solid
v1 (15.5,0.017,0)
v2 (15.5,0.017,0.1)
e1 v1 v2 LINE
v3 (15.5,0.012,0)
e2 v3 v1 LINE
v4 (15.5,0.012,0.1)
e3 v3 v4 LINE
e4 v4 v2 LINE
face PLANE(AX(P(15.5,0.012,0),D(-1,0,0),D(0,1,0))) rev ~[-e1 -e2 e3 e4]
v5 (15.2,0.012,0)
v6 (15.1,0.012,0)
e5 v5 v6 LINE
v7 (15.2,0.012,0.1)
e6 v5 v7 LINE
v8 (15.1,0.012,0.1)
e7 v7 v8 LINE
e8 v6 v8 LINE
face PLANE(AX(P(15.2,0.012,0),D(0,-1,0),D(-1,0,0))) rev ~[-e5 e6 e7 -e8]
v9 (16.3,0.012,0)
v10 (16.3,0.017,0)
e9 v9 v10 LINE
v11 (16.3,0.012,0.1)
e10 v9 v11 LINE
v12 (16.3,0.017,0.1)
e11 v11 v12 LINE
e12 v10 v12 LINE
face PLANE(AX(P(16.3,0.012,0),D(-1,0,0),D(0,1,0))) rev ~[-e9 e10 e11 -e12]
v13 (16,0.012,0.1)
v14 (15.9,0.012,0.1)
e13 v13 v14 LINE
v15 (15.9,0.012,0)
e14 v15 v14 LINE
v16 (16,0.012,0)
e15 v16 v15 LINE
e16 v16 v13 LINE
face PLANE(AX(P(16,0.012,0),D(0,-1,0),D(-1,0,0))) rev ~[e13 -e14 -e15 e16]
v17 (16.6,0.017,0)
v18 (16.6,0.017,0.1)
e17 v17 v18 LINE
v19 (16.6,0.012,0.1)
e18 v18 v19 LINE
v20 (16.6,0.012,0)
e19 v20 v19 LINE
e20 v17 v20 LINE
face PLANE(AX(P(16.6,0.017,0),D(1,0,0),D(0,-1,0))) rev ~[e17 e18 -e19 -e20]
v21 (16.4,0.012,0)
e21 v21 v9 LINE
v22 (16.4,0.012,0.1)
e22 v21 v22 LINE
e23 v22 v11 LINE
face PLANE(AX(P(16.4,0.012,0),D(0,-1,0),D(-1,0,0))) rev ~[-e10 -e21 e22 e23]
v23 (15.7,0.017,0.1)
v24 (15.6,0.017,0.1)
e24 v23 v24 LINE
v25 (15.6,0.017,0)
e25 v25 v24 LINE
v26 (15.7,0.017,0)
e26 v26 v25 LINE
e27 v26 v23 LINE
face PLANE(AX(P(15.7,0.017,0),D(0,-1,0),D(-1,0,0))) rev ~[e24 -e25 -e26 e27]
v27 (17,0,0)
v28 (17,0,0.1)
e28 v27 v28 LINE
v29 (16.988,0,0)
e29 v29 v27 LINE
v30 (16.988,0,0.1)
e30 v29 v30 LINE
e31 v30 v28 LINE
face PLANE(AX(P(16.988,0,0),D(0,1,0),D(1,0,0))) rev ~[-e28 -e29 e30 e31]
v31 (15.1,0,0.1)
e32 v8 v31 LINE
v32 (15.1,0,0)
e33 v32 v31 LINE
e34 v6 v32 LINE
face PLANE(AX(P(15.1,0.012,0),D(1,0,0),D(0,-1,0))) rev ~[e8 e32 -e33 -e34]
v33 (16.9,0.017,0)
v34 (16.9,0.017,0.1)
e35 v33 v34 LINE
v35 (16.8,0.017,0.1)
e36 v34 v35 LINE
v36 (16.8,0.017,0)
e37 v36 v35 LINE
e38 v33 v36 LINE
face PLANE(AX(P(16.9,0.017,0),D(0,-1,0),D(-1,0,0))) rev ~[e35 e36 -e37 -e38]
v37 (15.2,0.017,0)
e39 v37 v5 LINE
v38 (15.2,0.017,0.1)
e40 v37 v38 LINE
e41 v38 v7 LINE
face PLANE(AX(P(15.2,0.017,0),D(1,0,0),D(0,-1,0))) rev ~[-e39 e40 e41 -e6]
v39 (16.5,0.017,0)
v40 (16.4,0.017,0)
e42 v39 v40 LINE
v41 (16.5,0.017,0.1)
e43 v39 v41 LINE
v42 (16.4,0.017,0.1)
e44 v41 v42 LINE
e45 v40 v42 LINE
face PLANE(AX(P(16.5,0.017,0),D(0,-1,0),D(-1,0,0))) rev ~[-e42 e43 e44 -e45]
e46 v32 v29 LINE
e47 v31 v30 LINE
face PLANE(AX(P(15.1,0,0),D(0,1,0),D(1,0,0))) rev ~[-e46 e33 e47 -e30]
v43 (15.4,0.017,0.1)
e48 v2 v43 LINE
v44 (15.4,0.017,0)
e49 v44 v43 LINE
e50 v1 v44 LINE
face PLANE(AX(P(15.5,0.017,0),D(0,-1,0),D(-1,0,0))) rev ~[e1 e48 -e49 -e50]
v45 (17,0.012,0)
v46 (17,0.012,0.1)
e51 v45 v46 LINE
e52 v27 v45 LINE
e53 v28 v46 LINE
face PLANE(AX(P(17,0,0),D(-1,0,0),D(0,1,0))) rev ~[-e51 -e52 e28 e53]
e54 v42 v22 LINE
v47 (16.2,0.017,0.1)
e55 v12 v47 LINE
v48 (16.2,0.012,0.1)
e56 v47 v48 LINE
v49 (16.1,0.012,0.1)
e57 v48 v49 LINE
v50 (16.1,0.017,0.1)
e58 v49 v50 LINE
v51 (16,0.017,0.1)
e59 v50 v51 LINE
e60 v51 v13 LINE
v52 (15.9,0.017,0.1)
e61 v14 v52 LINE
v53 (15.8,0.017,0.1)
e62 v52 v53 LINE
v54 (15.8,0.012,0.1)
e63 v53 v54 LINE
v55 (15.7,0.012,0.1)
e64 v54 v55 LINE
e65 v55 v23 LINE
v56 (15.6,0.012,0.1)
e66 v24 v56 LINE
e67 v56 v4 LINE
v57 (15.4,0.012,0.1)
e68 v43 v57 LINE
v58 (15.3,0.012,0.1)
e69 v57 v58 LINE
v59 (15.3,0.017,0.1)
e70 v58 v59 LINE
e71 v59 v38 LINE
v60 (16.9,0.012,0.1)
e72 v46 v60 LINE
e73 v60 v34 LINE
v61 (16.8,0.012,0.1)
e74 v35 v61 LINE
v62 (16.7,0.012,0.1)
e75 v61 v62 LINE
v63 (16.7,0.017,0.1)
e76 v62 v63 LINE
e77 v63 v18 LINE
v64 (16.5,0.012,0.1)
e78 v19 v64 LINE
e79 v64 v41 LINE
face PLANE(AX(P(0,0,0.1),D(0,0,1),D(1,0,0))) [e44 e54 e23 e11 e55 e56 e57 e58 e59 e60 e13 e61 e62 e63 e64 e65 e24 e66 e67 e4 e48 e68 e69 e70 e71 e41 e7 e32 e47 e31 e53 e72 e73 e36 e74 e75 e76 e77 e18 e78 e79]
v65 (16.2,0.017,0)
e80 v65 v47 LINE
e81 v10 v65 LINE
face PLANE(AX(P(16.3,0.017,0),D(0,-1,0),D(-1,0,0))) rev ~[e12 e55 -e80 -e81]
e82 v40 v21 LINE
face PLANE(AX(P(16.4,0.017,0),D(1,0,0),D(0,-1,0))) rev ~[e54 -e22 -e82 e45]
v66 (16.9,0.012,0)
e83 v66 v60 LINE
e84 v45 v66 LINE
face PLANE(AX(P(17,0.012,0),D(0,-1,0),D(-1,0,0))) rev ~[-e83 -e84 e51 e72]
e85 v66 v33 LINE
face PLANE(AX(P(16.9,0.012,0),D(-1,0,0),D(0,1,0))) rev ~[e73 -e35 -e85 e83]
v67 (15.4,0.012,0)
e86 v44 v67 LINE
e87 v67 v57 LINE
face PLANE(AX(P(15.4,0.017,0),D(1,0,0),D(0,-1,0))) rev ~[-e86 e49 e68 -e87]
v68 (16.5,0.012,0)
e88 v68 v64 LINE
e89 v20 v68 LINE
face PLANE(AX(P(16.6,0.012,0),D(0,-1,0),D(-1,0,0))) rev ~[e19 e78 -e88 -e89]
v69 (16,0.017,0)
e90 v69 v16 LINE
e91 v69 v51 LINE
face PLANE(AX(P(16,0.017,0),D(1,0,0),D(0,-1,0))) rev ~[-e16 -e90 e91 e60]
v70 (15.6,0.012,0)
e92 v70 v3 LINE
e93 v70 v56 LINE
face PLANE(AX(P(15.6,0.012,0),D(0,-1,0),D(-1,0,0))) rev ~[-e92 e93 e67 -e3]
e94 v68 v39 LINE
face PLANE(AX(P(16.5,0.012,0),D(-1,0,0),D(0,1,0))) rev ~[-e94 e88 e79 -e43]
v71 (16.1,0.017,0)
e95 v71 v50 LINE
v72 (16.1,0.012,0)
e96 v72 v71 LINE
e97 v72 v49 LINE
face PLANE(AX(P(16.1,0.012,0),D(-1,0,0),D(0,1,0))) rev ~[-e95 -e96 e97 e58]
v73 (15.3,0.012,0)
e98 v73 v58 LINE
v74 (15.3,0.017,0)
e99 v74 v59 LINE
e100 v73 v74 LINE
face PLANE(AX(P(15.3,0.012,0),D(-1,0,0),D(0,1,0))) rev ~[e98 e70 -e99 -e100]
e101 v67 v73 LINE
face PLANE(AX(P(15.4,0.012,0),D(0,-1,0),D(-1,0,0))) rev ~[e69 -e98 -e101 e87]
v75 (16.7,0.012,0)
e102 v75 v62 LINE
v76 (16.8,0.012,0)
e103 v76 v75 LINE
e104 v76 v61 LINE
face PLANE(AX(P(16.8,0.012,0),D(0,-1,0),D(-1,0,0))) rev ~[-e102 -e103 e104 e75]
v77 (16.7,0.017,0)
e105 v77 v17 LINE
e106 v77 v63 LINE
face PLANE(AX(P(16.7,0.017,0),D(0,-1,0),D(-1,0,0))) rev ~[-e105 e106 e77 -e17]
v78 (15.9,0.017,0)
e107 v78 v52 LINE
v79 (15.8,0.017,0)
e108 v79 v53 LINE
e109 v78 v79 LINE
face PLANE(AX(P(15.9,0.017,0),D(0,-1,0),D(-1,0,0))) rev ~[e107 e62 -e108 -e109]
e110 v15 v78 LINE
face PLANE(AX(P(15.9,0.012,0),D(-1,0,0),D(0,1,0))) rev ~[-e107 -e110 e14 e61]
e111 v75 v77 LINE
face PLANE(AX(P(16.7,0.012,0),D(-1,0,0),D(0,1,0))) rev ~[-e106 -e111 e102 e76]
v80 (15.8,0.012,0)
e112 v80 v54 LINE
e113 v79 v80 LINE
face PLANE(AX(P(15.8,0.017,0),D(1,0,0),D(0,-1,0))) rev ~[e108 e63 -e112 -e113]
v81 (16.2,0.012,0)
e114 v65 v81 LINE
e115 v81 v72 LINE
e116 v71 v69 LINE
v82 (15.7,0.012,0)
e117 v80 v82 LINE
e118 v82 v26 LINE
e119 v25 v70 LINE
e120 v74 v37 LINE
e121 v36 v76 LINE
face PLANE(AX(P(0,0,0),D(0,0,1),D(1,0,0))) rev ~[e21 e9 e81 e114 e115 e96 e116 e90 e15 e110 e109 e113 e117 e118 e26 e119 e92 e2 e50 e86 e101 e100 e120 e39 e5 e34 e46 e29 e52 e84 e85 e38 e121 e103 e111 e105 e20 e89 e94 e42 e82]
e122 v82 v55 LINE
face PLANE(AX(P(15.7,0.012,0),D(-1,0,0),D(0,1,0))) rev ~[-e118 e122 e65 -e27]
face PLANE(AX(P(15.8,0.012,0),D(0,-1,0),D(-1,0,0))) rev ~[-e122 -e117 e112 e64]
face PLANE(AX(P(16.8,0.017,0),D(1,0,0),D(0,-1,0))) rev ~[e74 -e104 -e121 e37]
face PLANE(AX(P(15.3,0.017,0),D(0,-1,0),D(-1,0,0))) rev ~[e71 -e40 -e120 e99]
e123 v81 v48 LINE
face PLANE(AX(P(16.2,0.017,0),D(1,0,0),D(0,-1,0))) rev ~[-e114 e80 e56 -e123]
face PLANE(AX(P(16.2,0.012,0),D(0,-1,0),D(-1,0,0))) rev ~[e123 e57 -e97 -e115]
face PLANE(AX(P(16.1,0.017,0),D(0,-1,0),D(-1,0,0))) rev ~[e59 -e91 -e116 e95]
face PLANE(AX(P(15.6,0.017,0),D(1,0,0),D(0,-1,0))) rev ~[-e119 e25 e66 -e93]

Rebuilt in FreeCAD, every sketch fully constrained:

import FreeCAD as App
import Part
import Sketcher
from FreeCAD import Vector
Q = App.Units.Quantity


def add_polygon(sketch, points):
    """Adds a closed chain of lines whose ends are joined by coincident constraints."""
    first, n = sketch.GeometryCount, len(points)
    for a, b in zip(points, points[1:] + points[:1]):
        sketch.addGeometry(Part.LineSegment(App.Vector(*a, 0), App.Vector(*b, 0)), False)
    for i in range(n):
        sketch.addConstraint(Sketcher.Constraint("Coincident", first + i, 2, first + (i + 1) % n, 1))

doc = App.newDocument("Part")
body = doc.addObject("PartDesign::Body", "Body")

# Sketch on XY plane
sketch1 = doc.addObject("Sketcher::SketchObject", "Sketch")
body.addObject(sketch1)
sketch1.AttachmentSupport = (doc.XY_Plane, [""])
sketch1.MapMode = "FlatFace"
add_polygon(sketch1, [(15.1, 0.012), (15.1, 0), (17, 0), (17, 0.012), (16.9, 0.012), (16.9, 0.017), (16.8, 0.017), (16.8, 0.012), (16.7, 0.012), (16.7, 0.017), (16.6, 0.017), (16.6, 0.012), (16.5, 0.012), (16.5, 0.017), (16.4, 0.017), (16.4, 0.012), (16.3, 0.012), (16.3, 0.017), (16.2, 0.017), (16.2, 0.012), (16.1, 0.012), (16.1, 0.017), (16, 0.017), (16, 0.012), (15.9, 0.012), (15.9, 0.017), (15.8, 0.017), (15.8, 0.012), (15.7, 0.012), (15.7, 0.017), (15.6, 0.017), (15.6, 0.012), (15.5, 0.012), (15.5, 0.017), (15.4, 0.017), (15.4, 0.012), (15.3, 0.012), (15.3, 0.017), (15.2, 0.017), (15.2, 0.012)])  # lines 0-39
sketch1.addConstraint([
    Sketcher.Constraint("Vertical", 0),
    Sketcher.Constraint("Horizontal", 1),
    Sketcher.Constraint("Vertical", 2),
    Sketcher.Constraint("Horizontal", 3),
    Sketcher.Constraint("Vertical", 4),
    Sketcher.Constraint("Horizontal", 5),
    Sketcher.Constraint("Vertical", 6),
    Sketcher.Constraint("Horizontal", 7),
    Sketcher.Constraint("Vertical", 8),
    Sketcher.Constraint("Horizontal", 9),
    Sketcher.Constraint("Vertical", 10),
    Sketcher.Constraint("Horizontal", 11),
    Sketcher.Constraint("Vertical", 12),
    Sketcher.Constraint("Horizontal", 13),
    Sketcher.Constraint("Vertical", 14),
    Sketcher.Constraint("Horizontal", 15),
    Sketcher.Constraint("Vertical", 16),
    Sketcher.Constraint("Horizontal", 17),
    Sketcher.Constraint("Vertical", 18),
    Sketcher.Constraint("Horizontal", 19),
    Sketcher.Constraint("Vertical", 20),
    Sketcher.Constraint("Horizontal", 21),
    Sketcher.Constraint("Vertical", 22),
    Sketcher.Constraint("Horizontal", 23),
    Sketcher.Constraint("Vertical", 24),
    Sketcher.Constraint("Horizontal", 25),
    Sketcher.Constraint("Vertical", 26),
    Sketcher.Constraint("Horizontal", 27),
    Sketcher.Constraint("Vertical", 28),
    Sketcher.Constraint("Horizontal", 29),
    Sketcher.Constraint("Vertical", 30),
    Sketcher.Constraint("Horizontal", 31),
    Sketcher.Constraint("Vertical", 32),
    Sketcher.Constraint("Horizontal", 33),
    Sketcher.Constraint("Vertical", 34),
    Sketcher.Constraint("Horizontal", 35),
    Sketcher.Constraint("Vertical", 36),
    Sketcher.Constraint("Horizontal", 37),
    Sketcher.Constraint("Vertical", 38),
    Sketcher.Constraint("Horizontal", 39),
    Sketcher.Constraint("PointOnObject", 0, 2, -1),
    Sketcher.Constraint("Horizontal", 3, 2, 6, 2),
    Sketcher.Constraint("Horizontal", 5, 2, 8, 2),
    Sketcher.Constraint("Horizontal", 7, 2, 10, 2),
    Sketcher.Constraint("Horizontal", 9, 2, 12, 2),
    Sketcher.Constraint("Horizontal", 11, 2, 14, 2),
    Sketcher.Constraint("Horizontal", 13, 2, 16, 2),
    Sketcher.Constraint("Horizontal", 15, 2, 18, 2),
    Sketcher.Constraint("Horizontal", 17, 2, 20, 2),
    Sketcher.Constraint("Horizontal", 19, 2, 22, 2),
    Sketcher.Constraint("Horizontal", 21, 2, 24, 2),
    Sketcher.Constraint("Horizontal", 23, 2, 26, 2),
    Sketcher.Constraint("Horizontal", 25, 2, 28, 2),
    Sketcher.Constraint("Horizontal", 27, 2, 30, 2),
    Sketcher.Constraint("Horizontal", 29, 2, 32, 2),
    Sketcher.Constraint("Horizontal", 31, 2, 34, 2),
    Sketcher.Constraint("Horizontal", 33, 2, 36, 2),
    Sketcher.Constraint("Horizontal", 35, 2, 38, 2),
    Sketcher.Constraint("Equal", 3, 5),
    Sketcher.Constraint("Equal", 5, 7),
    Sketcher.Constraint("Equal", 7, 9),
    Sketcher.Constraint("Equal", 9, 11),
    Sketcher.Constraint("Equal", 11, 13),
    Sketcher.Constraint("Equal", 13, 15),
    Sketcher.Constraint("Equal", 15, 17),
    Sketcher.Constraint("Equal", 17, 19),
    Sketcher.Constraint("Equal", 19, 21),
    Sketcher.Constraint("Equal", 21, 23),
    Sketcher.Constraint("Equal", 23, 25),
    Sketcher.Constraint("Equal", 25, 27),
    Sketcher.Constraint("Equal", 27, 29),
    Sketcher.Constraint("Equal", 29, 31),
    Sketcher.Constraint("Equal", 31, 33),
    Sketcher.Constraint("Equal", 33, 35),
    Sketcher.Constraint("Equal", 35, 37),
    Sketcher.Constraint("Equal", 37, 39),
    Sketcher.Constraint("DistanceX", 3, 2, 3, 1, Q("0.1 mm")),
    Sketcher.Constraint("DistanceX", -1, 1, 1, 2, Q("17 mm")),
    Sketcher.Constraint("DistanceY", 0, 2, 0, 1, Q("0.012 mm")),
    Sketcher.Constraint("DistanceY", 4, 1, 4, 2, Q("0.005 mm")),
])
pad1 = doc.addObject("PartDesign::Pad", "Pad")
body.addObject(pad1)
pad1.Profile = sketch1
pad1.Length = 0.1

doc.recompute()
